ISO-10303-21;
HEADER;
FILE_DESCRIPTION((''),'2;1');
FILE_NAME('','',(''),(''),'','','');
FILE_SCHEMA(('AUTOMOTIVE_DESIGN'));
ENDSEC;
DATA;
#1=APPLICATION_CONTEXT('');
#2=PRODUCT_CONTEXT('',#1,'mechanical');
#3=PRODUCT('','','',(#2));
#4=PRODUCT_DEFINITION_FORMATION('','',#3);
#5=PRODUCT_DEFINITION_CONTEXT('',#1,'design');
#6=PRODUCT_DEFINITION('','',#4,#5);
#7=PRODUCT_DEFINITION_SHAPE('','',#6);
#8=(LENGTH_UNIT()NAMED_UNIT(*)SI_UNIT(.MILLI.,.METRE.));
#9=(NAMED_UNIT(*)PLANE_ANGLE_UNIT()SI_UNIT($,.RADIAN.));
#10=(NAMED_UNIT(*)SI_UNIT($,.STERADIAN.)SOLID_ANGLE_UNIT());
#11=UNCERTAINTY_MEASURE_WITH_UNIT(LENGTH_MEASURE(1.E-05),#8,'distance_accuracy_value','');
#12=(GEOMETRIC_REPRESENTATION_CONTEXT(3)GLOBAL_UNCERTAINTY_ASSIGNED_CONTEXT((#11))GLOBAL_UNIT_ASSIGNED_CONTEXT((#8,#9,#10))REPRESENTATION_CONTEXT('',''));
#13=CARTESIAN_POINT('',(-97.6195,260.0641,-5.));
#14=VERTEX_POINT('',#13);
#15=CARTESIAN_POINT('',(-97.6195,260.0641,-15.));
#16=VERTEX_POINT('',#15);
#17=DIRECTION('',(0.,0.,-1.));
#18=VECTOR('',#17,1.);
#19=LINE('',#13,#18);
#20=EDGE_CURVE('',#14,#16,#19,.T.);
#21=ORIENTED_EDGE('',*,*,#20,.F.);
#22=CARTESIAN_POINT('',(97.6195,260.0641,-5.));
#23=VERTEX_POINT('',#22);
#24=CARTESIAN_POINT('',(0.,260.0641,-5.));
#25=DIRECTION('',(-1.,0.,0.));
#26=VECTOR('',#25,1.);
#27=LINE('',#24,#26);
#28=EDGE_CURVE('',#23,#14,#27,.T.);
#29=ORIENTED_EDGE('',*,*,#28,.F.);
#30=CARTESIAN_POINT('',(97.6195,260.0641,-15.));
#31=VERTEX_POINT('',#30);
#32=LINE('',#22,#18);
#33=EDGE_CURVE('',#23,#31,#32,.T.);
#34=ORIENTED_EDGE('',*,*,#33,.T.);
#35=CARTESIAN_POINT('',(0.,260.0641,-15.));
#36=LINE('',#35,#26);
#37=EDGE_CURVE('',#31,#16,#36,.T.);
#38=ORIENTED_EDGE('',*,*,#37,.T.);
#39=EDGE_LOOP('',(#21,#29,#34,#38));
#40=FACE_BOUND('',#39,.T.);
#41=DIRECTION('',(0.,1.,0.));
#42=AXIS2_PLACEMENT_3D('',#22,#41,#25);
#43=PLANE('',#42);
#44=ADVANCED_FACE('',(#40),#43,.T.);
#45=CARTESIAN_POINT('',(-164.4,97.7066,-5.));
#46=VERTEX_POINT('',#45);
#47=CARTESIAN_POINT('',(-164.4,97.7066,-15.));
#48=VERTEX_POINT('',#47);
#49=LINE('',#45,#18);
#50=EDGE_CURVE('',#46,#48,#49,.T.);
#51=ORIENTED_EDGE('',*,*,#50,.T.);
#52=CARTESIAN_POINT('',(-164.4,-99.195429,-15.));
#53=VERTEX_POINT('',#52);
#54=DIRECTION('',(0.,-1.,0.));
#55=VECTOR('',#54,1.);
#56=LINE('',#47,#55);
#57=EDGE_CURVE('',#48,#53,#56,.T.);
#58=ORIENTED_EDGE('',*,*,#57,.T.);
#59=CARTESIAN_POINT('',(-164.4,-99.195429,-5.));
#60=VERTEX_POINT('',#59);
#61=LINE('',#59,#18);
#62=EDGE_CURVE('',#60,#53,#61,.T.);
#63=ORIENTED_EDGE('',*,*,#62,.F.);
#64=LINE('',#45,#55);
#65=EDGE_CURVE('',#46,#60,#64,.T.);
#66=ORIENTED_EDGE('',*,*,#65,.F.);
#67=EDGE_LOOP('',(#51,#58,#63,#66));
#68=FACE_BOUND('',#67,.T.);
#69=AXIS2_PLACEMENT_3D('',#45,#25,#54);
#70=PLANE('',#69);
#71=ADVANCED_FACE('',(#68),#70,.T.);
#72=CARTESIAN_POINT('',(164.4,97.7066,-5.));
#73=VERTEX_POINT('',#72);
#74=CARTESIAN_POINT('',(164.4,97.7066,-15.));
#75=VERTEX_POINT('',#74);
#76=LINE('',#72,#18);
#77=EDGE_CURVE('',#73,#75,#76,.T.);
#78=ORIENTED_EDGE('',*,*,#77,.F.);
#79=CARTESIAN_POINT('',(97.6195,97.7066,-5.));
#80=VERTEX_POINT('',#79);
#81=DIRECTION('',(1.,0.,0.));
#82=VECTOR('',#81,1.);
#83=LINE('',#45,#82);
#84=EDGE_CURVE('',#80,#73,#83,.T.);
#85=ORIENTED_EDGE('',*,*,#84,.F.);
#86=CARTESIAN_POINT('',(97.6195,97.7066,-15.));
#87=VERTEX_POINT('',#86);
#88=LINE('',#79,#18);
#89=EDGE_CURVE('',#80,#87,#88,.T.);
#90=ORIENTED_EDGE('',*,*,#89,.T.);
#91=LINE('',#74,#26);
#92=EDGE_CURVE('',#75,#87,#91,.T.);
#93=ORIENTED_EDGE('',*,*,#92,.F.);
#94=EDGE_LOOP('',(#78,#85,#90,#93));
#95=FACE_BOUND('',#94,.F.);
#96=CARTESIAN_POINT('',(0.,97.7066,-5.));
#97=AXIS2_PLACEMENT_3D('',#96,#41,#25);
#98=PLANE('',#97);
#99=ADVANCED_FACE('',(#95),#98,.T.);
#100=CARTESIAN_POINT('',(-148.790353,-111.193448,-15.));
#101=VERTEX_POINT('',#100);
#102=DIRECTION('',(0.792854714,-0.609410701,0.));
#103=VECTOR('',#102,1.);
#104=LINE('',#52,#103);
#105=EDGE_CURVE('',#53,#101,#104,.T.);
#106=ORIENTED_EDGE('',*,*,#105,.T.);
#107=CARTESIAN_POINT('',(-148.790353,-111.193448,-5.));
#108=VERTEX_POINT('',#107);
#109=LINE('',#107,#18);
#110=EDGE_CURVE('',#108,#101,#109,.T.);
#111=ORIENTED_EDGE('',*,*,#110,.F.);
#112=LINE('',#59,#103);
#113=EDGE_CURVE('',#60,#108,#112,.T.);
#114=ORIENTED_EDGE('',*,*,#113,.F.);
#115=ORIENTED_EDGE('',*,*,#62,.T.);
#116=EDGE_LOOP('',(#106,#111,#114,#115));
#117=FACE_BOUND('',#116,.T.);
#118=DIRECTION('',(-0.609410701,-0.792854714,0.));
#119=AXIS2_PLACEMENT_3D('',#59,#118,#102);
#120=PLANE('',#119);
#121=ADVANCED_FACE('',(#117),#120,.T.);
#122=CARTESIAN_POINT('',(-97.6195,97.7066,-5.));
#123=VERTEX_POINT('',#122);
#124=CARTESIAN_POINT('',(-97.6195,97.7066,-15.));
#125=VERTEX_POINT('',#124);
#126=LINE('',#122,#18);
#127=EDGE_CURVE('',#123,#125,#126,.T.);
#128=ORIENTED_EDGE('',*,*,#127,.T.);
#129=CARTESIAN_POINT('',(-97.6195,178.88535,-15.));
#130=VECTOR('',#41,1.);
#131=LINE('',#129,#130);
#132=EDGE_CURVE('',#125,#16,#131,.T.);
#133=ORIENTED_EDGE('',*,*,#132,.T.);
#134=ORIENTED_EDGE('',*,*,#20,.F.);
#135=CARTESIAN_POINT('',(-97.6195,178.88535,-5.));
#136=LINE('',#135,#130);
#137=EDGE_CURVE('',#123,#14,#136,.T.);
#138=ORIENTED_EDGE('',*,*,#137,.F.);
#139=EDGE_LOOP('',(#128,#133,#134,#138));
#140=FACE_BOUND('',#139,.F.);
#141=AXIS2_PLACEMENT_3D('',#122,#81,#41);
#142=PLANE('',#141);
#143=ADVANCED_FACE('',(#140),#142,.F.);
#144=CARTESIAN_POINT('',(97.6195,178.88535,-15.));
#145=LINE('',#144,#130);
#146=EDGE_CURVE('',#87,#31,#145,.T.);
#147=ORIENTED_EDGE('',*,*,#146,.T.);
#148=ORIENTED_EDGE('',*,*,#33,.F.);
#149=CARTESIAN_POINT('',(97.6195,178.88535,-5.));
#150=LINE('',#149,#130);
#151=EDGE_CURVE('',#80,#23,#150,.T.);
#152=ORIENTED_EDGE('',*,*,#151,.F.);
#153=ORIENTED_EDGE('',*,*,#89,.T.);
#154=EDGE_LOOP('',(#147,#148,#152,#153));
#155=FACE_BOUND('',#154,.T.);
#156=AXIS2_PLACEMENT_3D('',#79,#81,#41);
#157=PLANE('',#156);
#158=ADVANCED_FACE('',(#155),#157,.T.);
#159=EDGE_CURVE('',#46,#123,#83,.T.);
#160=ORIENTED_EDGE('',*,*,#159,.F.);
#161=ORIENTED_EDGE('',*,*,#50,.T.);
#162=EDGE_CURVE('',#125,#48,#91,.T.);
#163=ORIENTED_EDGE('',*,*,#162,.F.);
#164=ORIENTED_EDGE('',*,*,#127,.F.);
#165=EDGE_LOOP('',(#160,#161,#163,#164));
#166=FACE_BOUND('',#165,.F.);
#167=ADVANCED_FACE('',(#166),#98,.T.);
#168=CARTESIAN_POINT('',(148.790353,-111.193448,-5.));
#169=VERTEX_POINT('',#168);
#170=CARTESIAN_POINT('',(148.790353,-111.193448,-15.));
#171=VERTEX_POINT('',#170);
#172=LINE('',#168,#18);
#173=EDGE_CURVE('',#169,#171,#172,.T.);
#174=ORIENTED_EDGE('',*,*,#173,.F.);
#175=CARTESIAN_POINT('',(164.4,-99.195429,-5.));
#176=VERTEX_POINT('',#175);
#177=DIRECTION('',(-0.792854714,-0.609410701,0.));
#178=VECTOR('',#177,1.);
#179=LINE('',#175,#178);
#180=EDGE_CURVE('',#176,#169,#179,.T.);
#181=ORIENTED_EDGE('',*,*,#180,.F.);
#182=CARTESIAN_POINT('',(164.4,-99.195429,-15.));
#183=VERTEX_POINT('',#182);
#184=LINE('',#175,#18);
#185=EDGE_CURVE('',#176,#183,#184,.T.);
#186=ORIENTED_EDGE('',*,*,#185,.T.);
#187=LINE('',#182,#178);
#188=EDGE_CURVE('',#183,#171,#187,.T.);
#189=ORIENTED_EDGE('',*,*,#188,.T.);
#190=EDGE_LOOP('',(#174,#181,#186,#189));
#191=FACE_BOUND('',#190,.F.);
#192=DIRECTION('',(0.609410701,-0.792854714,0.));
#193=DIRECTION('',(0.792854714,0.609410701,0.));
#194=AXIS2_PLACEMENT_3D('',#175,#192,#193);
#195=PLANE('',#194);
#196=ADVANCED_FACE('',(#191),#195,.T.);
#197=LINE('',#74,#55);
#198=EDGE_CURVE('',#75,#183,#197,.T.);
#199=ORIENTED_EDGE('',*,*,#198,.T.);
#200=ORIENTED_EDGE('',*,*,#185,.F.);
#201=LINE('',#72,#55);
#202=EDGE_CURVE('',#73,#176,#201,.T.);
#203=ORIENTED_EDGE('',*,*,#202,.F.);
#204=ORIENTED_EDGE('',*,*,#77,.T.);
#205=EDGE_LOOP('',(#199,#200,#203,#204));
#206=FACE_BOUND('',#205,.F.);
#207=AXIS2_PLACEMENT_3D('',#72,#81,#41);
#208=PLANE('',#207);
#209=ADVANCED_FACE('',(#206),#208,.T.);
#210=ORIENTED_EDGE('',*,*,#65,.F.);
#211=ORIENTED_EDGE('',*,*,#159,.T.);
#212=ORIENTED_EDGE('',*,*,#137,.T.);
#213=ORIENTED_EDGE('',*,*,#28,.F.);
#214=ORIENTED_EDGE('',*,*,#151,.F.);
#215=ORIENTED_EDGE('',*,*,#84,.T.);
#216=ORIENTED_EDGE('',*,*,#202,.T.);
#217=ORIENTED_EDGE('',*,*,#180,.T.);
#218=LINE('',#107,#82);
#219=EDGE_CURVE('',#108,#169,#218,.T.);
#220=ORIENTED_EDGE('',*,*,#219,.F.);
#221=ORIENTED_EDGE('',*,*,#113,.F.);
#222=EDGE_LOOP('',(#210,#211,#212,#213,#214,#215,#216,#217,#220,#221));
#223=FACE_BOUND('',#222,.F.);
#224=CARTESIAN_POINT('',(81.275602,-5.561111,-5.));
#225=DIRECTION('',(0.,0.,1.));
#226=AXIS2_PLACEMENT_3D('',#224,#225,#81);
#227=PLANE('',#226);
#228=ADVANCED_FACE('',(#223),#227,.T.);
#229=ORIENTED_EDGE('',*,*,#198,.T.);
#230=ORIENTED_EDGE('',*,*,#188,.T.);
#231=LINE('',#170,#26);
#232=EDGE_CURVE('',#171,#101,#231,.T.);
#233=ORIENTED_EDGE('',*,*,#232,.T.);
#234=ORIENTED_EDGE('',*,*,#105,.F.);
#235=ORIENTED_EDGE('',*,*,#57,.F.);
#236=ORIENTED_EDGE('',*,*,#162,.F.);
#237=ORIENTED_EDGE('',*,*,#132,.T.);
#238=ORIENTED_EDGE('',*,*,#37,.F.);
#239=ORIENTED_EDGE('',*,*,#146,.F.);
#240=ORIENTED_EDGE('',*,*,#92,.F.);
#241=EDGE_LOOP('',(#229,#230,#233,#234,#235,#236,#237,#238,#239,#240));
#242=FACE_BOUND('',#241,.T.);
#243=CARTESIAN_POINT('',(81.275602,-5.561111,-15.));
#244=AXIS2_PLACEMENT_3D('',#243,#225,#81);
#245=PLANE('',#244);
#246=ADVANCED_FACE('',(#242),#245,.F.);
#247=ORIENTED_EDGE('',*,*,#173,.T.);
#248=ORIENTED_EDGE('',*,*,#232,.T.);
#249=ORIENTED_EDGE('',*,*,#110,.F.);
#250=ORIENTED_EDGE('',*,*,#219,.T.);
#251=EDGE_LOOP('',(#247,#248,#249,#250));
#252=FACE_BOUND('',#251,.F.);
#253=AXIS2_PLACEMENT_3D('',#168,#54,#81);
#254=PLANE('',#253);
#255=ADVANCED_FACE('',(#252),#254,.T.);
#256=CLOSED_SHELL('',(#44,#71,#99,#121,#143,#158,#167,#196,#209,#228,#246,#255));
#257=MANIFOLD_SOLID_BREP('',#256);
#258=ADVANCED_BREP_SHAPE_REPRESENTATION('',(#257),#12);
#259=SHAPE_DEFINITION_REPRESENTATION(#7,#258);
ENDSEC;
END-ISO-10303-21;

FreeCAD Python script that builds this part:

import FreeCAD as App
import Part
import Sketcher

V = App.Vector
Q = App.Units.Quantity


def add_polygon(sketch, points):
    """Adds a closed chain of lines whose ends are joined by coincident constraints."""
    first, n = sketch.GeometryCount, len(points)
    for a, b in zip(points, points[1:] + points[:1]):
        sketch.addGeometry(Part.LineSegment(App.Vector(*a, 0), App.Vector(*b, 0)), False)
    for i in range(n):
        sketch.addConstraint(Sketcher.Constraint("Coincident", first + i, 2, first + (i + 1) % n, 1))

doc = App.newDocument("Part")
body = doc.addObject("PartDesign::Body", "Body")

sketch1 = body.newObject("Sketcher::SketchObject", "Sketch")
sketch1.AttachmentSupport = (doc.getObject("XY_Plane"), [""])
sketch1.MapMode = "FlatFace"
add_polygon(sketch1, [(-164.4, 97.7066), (0, 97.7066), (0, -111.193448), (-148.790353, -111.193448), (-164.4, -99.195429)])
sketch1.addConstraint(Sketcher.Constraint("Horizontal", 0))
sketch1.addConstraint(Sketcher.Constraint("Vertical", 1))
sketch1.addConstraint(Sketcher.Constraint("Horizontal", 2))
sketch1.addConstraint(Sketcher.Constraint("Vertical", 4))
sketch1.addConstraint(Sketcher.Constraint("PointOnObject", 0, 2, -2))
sketch1.addConstraint(Sketcher.Constraint("DistanceX", 0, 1, 0, 2, Q("164.4 mm")))
sketch1.addConstraint(Sketcher.Constraint("DistanceY", 1, 2, 1, 1, Q("208.900048 mm")))
sketch1.addConstraint(Sketcher.Constraint("DistanceY", 4, 1, 4, 2, Q("196.902029 mm")))
sketch1.addConstraint(Sketcher.Constraint("DistanceY", -1, 1, 0, 2, Q("97.7066 mm")))
sketch1.addConstraint(Sketcher.Constraint("DistanceX", 2, 2, 2, 1, Q("148.790353 mm")))
pad1 = body.newObject("PartDesign::Pad", "Pad")
pad1.Profile = sketch1
pad1.Length = 10
pad1.Reversed = True
doc.recompute()

mirrored = body.newObject("PartDesign::Mirrored", "Mirrored")
mirrored.Originals = [pad1]
mirrored.MirrorPlane = (doc.getObject("YZ_Plane"), [""])
body.Tip = mirrored

sketch2 = body.newObject("Sketcher::SketchObject", "Sketch001")
sketch2.AttachmentSupport = (doc.getObject("XY_Plane"), [""])
sketch2.MapMode = "FlatFace"
add_polygon(sketch2, [(97.6195, 260.0641), (97.6195, 97.7066), (-97.6195, 97.7066), (-97.6195, 260.0641)])
sketch2.addConstraint(Sketcher.Constraint("Vertical", 0))
sketch2.addConstraint(Sketcher.Constraint("Horizontal", 1))
sketch2.addConstraint(Sketcher.Constraint("Vertical", 2))
sketch2.addConstraint(Sketcher.Constraint("Horizontal", 3))
sketch2.addConstraint(Sketcher.Constraint("DistanceX", 1, 2, 1, 1, Q("195.239 mm")))
sketch2.addConstraint(Sketcher.Constraint("DistanceY", 0, 2, 0, 1, Q("162.3575 mm")))
sketch2.addConstraint(Sketcher.Constraint("DistanceX", -1, 1, 0, 2, Q("97.6195 mm")))
sketch2.addConstraint(Sketcher.Constraint("DistanceY", -1, 1, 0, 2, Q("97.7066 mm")))
pad2 = body.newObject("PartDesign::Pad", "Pad001")
pad2.Profile = sketch2
pad2.Length = 10
pad2.Reversed = True
body2 = doc.addObject("PartDesign::Body", "Body001")
doc.recompute()

body.Placement = App.Placement(V(0, 0, -5), App.Rotation(V(0, 0, 1), 0))
boolean = body2.newObject("PartDesign::Boolean", "Boolean")
boolean.Type = "Fuse"
boolean.addObjects([body])

doc.recompute()
